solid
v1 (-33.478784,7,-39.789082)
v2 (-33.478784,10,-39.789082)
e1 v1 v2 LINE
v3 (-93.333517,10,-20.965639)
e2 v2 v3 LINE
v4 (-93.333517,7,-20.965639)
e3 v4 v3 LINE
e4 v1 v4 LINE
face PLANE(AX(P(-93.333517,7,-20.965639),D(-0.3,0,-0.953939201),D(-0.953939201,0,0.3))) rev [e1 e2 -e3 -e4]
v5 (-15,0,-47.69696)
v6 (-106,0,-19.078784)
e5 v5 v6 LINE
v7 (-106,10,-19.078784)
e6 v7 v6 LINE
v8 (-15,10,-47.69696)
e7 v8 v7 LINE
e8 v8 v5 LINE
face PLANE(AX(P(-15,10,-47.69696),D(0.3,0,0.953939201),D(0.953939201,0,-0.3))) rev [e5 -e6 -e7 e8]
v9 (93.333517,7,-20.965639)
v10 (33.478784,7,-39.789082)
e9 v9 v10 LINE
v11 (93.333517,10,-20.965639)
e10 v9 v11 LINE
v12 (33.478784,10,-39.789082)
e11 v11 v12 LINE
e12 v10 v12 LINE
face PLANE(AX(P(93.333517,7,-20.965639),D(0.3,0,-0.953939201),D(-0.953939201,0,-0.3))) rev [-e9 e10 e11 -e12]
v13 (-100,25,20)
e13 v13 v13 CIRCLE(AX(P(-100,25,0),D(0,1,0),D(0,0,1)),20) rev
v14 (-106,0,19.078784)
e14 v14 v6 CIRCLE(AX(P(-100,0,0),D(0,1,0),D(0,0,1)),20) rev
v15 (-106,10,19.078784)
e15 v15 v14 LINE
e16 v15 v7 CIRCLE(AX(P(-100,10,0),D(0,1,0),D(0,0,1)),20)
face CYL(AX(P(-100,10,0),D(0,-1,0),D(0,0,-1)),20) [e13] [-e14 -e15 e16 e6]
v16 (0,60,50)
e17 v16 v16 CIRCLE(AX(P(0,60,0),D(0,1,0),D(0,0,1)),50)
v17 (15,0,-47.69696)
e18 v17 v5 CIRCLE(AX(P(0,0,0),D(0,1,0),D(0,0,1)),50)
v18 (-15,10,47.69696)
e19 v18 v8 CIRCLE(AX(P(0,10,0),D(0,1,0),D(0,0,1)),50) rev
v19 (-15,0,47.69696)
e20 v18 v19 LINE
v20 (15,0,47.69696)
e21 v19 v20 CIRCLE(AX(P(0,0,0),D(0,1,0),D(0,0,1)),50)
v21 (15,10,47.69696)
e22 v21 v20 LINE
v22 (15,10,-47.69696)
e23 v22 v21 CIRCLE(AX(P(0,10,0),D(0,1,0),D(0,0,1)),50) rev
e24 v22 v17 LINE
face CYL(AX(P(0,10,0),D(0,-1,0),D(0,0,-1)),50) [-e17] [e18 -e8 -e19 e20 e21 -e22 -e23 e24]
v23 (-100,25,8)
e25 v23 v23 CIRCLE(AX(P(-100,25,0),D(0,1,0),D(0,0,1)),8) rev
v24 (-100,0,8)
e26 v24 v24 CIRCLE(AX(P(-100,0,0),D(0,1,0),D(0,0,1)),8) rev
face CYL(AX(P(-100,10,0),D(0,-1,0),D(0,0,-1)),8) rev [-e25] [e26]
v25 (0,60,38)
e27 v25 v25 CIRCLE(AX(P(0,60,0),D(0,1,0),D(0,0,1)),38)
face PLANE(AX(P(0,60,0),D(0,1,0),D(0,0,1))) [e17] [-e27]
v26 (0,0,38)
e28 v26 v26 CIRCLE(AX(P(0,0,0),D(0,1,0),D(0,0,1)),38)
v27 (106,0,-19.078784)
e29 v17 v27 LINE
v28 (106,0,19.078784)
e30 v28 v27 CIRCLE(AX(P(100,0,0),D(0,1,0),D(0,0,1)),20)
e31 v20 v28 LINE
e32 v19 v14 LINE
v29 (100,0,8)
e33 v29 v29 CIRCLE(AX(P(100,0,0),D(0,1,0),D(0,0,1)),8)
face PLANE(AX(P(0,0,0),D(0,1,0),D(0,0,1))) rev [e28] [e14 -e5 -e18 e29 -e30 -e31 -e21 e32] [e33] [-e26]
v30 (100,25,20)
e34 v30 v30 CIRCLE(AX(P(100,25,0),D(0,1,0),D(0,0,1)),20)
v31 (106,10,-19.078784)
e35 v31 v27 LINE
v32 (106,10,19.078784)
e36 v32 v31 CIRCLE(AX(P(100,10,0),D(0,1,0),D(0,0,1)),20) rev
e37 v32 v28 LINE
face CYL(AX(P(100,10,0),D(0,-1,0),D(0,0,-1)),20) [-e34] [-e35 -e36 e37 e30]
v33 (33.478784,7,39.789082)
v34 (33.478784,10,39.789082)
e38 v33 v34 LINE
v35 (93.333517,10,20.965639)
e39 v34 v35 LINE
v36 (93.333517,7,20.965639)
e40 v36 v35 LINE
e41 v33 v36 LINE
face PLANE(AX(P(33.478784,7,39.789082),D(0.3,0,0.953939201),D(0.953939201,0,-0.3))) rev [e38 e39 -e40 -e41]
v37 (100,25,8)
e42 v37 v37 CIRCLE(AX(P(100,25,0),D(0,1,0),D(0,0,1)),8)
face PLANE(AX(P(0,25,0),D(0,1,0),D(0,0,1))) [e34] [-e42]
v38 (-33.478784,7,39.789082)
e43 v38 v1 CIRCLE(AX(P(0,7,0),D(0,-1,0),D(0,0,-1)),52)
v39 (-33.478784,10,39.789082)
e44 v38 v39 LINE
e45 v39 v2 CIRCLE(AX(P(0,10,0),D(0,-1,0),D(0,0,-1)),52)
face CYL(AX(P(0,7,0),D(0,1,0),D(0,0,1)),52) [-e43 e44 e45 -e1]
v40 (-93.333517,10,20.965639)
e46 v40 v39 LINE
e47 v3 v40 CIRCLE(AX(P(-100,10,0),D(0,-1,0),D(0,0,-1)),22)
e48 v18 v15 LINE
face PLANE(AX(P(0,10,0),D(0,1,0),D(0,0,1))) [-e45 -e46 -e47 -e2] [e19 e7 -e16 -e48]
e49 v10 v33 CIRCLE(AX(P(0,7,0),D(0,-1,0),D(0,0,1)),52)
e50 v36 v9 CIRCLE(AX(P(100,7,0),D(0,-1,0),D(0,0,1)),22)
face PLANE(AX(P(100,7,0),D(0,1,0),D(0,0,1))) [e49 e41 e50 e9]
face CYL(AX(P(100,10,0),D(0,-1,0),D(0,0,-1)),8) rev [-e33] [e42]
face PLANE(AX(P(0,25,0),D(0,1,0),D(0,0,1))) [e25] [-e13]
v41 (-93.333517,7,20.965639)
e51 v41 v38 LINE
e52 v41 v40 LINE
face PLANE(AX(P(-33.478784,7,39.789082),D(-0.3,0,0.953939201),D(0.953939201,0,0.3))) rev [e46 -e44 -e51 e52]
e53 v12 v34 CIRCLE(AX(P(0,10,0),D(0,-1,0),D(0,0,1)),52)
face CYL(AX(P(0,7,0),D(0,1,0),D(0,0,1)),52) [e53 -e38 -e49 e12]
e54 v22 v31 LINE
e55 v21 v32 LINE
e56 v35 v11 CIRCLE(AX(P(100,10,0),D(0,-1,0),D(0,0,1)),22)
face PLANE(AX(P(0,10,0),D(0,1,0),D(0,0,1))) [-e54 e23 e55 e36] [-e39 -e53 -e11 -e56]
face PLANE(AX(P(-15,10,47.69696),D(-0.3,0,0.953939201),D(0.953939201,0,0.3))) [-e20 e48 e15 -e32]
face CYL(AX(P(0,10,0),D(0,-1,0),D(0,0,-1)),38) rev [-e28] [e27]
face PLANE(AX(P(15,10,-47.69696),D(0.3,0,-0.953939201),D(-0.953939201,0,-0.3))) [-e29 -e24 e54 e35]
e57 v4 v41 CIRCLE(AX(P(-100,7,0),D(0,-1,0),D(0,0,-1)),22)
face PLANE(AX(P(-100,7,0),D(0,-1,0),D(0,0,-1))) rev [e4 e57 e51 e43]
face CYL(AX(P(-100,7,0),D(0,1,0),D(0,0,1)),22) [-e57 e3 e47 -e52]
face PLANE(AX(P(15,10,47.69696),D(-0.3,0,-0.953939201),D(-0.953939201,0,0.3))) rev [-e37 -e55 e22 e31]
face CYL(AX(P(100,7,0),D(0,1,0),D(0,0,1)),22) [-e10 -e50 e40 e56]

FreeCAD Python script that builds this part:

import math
import FreeCAD as App
import Part
import Sketcher

doc = App.newDocument("Part")
body = doc.addObject("PartDesign::Body", "Body")

# Sketch on XZ plane
sketch1 = doc.addObject("Sketcher::SketchObject", "Sketch")
body.addObject(sketch1)
sketch1.AttachmentSupport = (doc.XZ_Plane, [""])
sketch1.MapMode = "FlatFace"
sketch1.addGeometry([
    Part.LineSegment(App.Vector(-15, -48, 0), App.Vector(-106, -19, 0)),  # 0
    Part.ArcOfCircle(Part.Circle(App.Vector(-100, 0, 0), App.Vector(0, 0, 1), 20), math.radians(107), math.radians(253)),  # 1
    Part.LineSegment(App.Vector(-106, 19, 0), App.Vector(-15, 48, 0)),  # 2
    Part.ArcOfCircle(Part.Circle(App.Vector(0, 0, 0), App.Vector(0, 0, 1), 50), math.radians(73), math.radians(107)),  # 3
    Part.LineSegment(App.Vector(15, 48, 0), App.Vector(106, 19, 0)),  # 4
    Part.ArcOfCircle(Part.Circle(App.Vector(100, 0, 0), App.Vector(0, 0, 1), 20), math.radians(-73), math.radians(73)),  # 5
    Part.LineSegment(App.Vector(106, -19, 0), App.Vector(15, -48, 0)),  # 6
    Part.ArcOfCircle(Part.Circle(App.Vector(0, 0, 0), App.Vector(0, 0, 1), 50), math.radians(-107), math.radians(-73)),  # 7
    Part.Circle(App.Vector(0, 0, 0), App.Vector(0, 0, 1), 38),  # 8
    Part.Circle(App.Vector(-100, 0, 0), App.Vector(0, 0, 1), 8),  # 9
    Part.Circle(App.Vector(100, 0, 0), App.Vector(0, 0, 1), 8),  # 10
], False)
sketch1.addConstraint([
    Sketcher.Constraint("Tangent", 0, 2, 1, 2),
    Sketcher.Constraint("Tangent", 1, 1, 2, 1),
    Sketcher.Constraint("Tangent", 2, 2, 3, 2),
    Sketcher.Constraint("Tangent", 3, 1, 4, 1),
    Sketcher.Constraint("Tangent", 4, 2, 5, 2),
    Sketcher.Constraint("Tangent", 5, 1, 6, 1),
    Sketcher.Constraint("Tangent", 6, 2, 7, 2),
    Sketcher.Constraint("Tangent", 7, 1, 0, 1),
    Sketcher.Constraint("Coincident", 3, 3, -1, 1),
    Sketcher.Constraint("Coincident", 7, 3, -1, 1),
    Sketcher.Constraint("Coincident", 8, 3, -1, 1),
    Sketcher.Constraint("Coincident", 9, 3, 1, 3),
    Sketcher.Constraint("Coincident", 10, 3, 5, 3),
    Sketcher.Constraint("Equal", 1, 5),
    Sketcher.Constraint("Equal", 3, 7),
    Sketcher.Constraint("Equal", 9, 10),
    Sketcher.Constraint("Symmetric", 1, 3, 5, 3, -1, 1),
    Sketcher.Constraint("PointOnObject", 1, 3, -1),
    Sketcher.Constraint("Diameter", 8, 76.0),
    Sketcher.Constraint("Diameter", 9, 16.0),
    Sketcher.Constraint("Radius", 1, 20.0),
    Sketcher.Constraint("Radius", 3, 50.0),
    Sketcher.Constraint("DistanceX", 1, 3, -1, 1, 100.0),
])
pad1 = doc.addObject("PartDesign::Pad", "Pad")
body.addObject(pad1)
pad1.Profile = sketch1
pad1.Length = 10
pad1.Reversed = True

# Sketch on XZ plane
sketch2 = doc.addObject("Sketcher::SketchObject", "Sketch001")
body.addObject(sketch2)
sketch2.AttachmentSupport = (doc.XZ_Plane, [""])
sketch2.MapMode = "FlatFace"
sketch2.addGeometry([
    Part.Circle(App.Vector(-100, 0, 0), App.Vector(0, 0, 1), 20),
    Part.Circle(App.Vector(-100, 0, 0), App.Vector(0, 0, 1), 8),
    Part.Circle(App.Vector(100, 0, 0), App.Vector(0, 0, 1), 20),
    Part.Circle(App.Vector(100, 0, 0), App.Vector(0, 0, 1), 8),
], False)
sketch2.addConstraint([
    Sketcher.Constraint("Coincident", 1, 3, 0, 3),
    Sketcher.Constraint("Coincident", 3, 3, 2, 3),
    Sketcher.Constraint("Equal", 0, 2),
    Sketcher.Constraint("Equal", 1, 3),
    Sketcher.Constraint("Symmetric", 0, 3, 2, 3, -1, 1),
    Sketcher.Constraint("PointOnObject", 0, 3, -1),
    Sketcher.Constraint("Diameter", 0, 40.0),
    Sketcher.Constraint("Diameter", 1, 16.0),
    Sketcher.Constraint("DistanceX", 0, 3, -1, 1, 100.0),
])
pad2 = doc.addObject("PartDesign::Pad", "Pad001")
body.addObject(pad2)
pad2.Profile = sketch2
pad2.Length = 25
pad2.Reversed = True

# Sketch on XZ plane
sketch3 = doc.addObject("Sketcher::SketchObject", "Sketch002")
body.addObject(sketch3)
sketch3.AttachmentSupport = (doc.XZ_Plane, [""])
sketch3.MapMode = "FlatFace"
sketch3.addGeometry([
    Part.Circle(App.Vector(0, 0, 0), App.Vector(0, 0, 1), 50),
    Part.Circle(App.Vector(0, 0, 0), App.Vector(0, 0, 1), 38),
], False)
sketch3.addConstraint([
    Sketcher.Constraint("Coincident", 0, 3, -1, 1),
    Sketcher.Constraint("Coincident", 1, 3, -1, 1),
    Sketcher.Constraint("Diameter", 0, 100.0),
    Sketcher.Constraint("Diameter", 1, 76.0),
])
pad3 = doc.addObject("PartDesign::Pad", "Pad002")
body.addObject(pad3)
pad3.Profile = sketch3
pad3.Length = 60
pad3.Reversed = True

# Sketch on XZ plane
sketch4 = doc.addObject("Sketcher::SketchObject", "Sketch003")
body.addObject(sketch4)
sketch4.AttachmentSupport = (doc.XZ_Plane, [""])
sketch4.MapMode = "FlatFace"
sketch4.AttachmentOffset = App.Placement(App.Vector(0, 0, -10), App.Rotation())
sketch4.addGeometry([
    Part.LineSegment(App.Vector(-93, 21, 0), App.Vector(-33, 40, 0)),  # 0
    Part.ArcOfCircle(Part.Circle(App.Vector(0, 0, 0), App.Vector(0, 0, 1), 52), math.radians(130), math.radians(230)),  # 1
    Part.LineSegment(App.Vector(-33, -40, 0), App.Vector(-93, -21, 0)),  # 2
    Part.ArcOfCircle(Part.Circle(App.Vector(-100, 0, 0), App.Vector(0, 0, 1), 22), math.radians(-72), math.radians(72)),  # 3
    Part.LineSegment(App.Vector(93, -21, 0), App.Vector(33, -40, 0)),  # 4
    Part.ArcOfCircle(Part.Circle(App.Vector(0, 0, 0), App.Vector(0, 0, 1), 52), math.radians(-50), math.radians(50)),  # 5
    Part.LineSegment(App.Vector(33, 40, 0), App.Vector(93, 21, 0)),  # 6
    Part.ArcOfCircle(Part.Circle(App.Vector(100, 0, 0), App.Vector(0, 0, 1), 22), math.radians(108), math.radians(252)),  # 7
], False)
sketch4.addConstraint([
    Sketcher.Constraint("Coincident", 0, 2, 1, 1),
    Sketcher.Constraint("Coincident", 1, 2, 2, 1),
    Sketcher.Constraint("Coincident", 2, 2, 3, 1),
    Sketcher.Constraint("Coincident", 3, 2, 0, 1),
    Sketcher.Constraint("Coincident", 4, 2, 5, 1),
    Sketcher.Constraint("Coincident", 5, 2, 6, 1),
    Sketcher.Constraint("Coincident", 6, 2, 7, 1),
    Sketcher.Constraint("Coincident", 7, 2, 4, 1),
    Sketcher.Constraint("Coincident", 1, 3, -1, 1),
    Sketcher.Constraint("Coincident", 5, 3, -1, 1),
    Sketcher.Constraint("Equal", 1, 5),
    Sketcher.Constraint("Equal", 3, 7),
    Sketcher.Constraint("Symmetric", 3, 3, 7, 3, -1, 1),
    Sketcher.Constraint("Symmetric", 3, 2, 6, 2, -2),
    Sketcher.Constraint("Parallel", 0, 4),
    Sketcher.Constraint("Parallel", 2, 6),
    Sketcher.Constraint("Horizontal", 1, 2, 4, 2),
    Sketcher.Constraint("Horizontal", 0, 2, 5, 2),
    Sketcher.Constraint("Vertical", 0, 2, 1, 2),
    Sketcher.Constraint("Radius", 1, 52.0),
    Sketcher.Constraint("Radius", 3, 22.0),
    Sketcher.Constraint("DistanceX", 3, 3, -1, 1, 100.0),
    Sketcher.Constraint("Distance", 0, 62.74481),
    Sketcher.Constraint("DistanceY", -1, 1, 0, 2, 39.789082),
])
pocket1 = doc.addObject("PartDesign::Pocket", "Pocket")
body.addObject(pocket1)
pocket1.Profile = sketch4
pocket1.Length = 3
pocket1.Reversed = True

doc.recompute()
